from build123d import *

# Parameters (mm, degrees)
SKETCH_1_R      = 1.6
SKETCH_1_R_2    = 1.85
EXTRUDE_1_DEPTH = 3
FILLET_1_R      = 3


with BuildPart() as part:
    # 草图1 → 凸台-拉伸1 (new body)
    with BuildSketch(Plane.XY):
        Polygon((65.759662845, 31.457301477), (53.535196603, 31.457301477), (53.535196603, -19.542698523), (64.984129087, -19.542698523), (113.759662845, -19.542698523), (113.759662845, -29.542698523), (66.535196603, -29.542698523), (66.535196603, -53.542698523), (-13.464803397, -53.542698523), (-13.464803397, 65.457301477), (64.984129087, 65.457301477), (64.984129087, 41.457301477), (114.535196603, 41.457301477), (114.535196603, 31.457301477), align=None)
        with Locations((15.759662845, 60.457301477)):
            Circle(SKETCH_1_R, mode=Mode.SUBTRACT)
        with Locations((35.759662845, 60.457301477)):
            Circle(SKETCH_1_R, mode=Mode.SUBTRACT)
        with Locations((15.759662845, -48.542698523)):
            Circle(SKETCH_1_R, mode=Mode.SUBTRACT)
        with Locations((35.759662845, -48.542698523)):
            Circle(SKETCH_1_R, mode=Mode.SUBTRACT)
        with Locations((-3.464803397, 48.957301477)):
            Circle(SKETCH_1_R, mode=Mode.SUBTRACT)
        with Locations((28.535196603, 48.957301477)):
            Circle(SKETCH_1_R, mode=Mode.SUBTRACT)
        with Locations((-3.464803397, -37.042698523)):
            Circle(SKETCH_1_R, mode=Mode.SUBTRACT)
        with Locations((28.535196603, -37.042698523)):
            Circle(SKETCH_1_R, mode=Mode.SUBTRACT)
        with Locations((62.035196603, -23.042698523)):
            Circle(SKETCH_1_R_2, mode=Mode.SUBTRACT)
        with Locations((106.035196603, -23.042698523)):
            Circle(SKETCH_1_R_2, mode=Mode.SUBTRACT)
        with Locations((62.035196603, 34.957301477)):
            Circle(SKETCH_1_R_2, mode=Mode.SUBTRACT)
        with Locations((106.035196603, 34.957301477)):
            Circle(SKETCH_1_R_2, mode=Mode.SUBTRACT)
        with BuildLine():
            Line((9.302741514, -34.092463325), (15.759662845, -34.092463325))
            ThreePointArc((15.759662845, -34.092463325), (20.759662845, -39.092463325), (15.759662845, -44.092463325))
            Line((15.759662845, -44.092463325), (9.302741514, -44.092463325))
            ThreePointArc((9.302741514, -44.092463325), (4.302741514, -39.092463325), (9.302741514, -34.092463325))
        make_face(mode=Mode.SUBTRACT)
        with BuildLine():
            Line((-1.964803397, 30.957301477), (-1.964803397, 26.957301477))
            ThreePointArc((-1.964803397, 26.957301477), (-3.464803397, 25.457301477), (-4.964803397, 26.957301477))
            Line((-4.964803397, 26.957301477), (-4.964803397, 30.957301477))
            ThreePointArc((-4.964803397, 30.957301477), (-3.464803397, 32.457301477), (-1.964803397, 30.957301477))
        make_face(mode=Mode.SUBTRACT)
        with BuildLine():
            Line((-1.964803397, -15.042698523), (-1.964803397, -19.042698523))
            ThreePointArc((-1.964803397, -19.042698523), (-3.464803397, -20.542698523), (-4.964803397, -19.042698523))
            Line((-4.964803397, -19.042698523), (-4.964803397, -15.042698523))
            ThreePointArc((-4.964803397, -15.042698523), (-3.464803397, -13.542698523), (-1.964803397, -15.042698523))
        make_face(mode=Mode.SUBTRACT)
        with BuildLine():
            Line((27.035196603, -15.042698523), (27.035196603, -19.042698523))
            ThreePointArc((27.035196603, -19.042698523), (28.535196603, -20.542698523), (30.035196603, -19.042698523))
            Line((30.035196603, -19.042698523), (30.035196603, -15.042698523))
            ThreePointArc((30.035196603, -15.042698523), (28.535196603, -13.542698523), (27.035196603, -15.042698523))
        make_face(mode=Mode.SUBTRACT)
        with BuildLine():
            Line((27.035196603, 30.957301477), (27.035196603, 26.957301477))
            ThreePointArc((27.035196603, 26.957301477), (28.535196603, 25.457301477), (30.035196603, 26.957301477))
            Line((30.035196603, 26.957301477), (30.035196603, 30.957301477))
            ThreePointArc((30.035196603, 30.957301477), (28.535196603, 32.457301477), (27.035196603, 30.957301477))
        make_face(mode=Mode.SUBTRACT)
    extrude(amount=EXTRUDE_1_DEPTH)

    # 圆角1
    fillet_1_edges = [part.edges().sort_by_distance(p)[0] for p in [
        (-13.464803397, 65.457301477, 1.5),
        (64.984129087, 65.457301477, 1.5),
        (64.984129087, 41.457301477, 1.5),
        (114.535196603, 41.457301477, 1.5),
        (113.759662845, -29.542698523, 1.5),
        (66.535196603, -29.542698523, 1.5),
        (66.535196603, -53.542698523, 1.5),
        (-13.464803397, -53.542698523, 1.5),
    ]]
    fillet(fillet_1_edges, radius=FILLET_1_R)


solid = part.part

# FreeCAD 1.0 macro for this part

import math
import FreeCAD as App
import Part
import Sketcher

V = App.Vector


def edges_at(feature, points):
    """Names of the edges that pass closest to the given points."""
    edges = feature.Shape.Edges
    near = lambda p: min(range(len(edges)), key=lambda i: edges[i].distToShape(Part.Vertex(*p))[0])
    return sorted({f"Edge{near(p) + 1}" for p in points})

doc = App.newDocument("Part")
body = doc.addObject("PartDesign::Body", "Body")

sketch1 = body.newObject("Sketcher::SketchObject", "Sketch")
sketch1.AttachmentSupport = (doc.getObject("XY_Plane"), [""])
sketch1.MapMode = "FlatFace"
sketch1.addGeometry(Part.LineSegment(V(53.5, 31.5, 0), V(114.5, 31.5, 0)), False)
sketch1.addGeometry(Part.LineSegment(V(114.5, 31.5, 0), V(114.5, 41.5, 0)), False)
sketch1.addGeometry(Part.LineSegment(V(114.5, 41.5, 0), V(65, 41.5, 0)), False)
sketch1.addGeometry(Part.LineSegment(V(65, 41.5, 0), V(65, 65.5, 0)), False)
sketch1.addGeometry(Part.LineSegment(V(65, 65.5, 0), V(-13.5, 65.5, 0)), False)
sketch1.addGeometry(Part.LineSegment(V(-13.5, 65.5, 0), V(-13.5, -53.5, 0)), False)
sketch1.addGeometry(Part.LineSegment(V(-13.5, -53.5, 0), V(66.5, -53.5, 0)), False)
sketch1.addGeometry(Part.LineSegment(V(66.5, -53.5, 0), V(66.5, -29.5, 0)), False)
sketch1.addGeometry(Part.LineSegment(V(66.5, -29.5, 0), V(113.8, -29.5, 0)), False)
sketch1.addGeometry(Part.LineSegment(V(113.8, -29.5, 0), V(113.8, -19.5, 0)), False)
sketch1.addGeometry(Part.LineSegment(V(113.8, -19.5, 0), V(53.5, -19.5, 0)), False)
sketch1.addGeometry(Part.LineSegment(V(53.5, -19.5, 0), V(53.5, 31.5, 0)), False)
sketch1.addGeometry(Part.Circle(V(106, -23, 0), V(0, 0, 1), 1.9), False)
sketch1.addGeometry(Part.Circle(V(62, -23, 0), V(0, 0, 1), 1.9), False)
sketch1.addGeometry(Part.Circle(V(35.8, -48.5, 0), V(0, 0, 1), 1.6), False)
sketch1.addGeometry(Part.Circle(V(28.5, -37, 0), V(0, 0, 1), 1.6), False)
sketch1.addGeometry(Part.Circle(V(15.8, -48.5, 0), V(0, 0, 1), 1.6), False)
sketch1.addGeometry(Part.LineSegment(V(9.3, -34.1, 0), V(15.8, -34.1, 0)), False)
sketch1.addGeometry(Part.ArcOfCircle(Part.Circle(V(15.8, -39.1, 0), V(0, 0, 1), 5), math.radians(-90), math.radians(90)), False)
sketch1.addGeometry(Part.LineSegment(V(15.8, -44.1, 0), V(9.3, -44.1, 0)), False)
sketch1.addGeometry(Part.ArcOfCircle(Part.Circle(V(9.3, -39.1, 0), V(0, 0, 1), 5), math.radians(90), math.radians(270)), False)
sketch1.addGeometry(Part.Circle(V(-3.5, -37, 0), V(0, 0, 1), 1.6), False)
sketch1.addGeometry(Part.ArcOfCircle(Part.Circle(V(28.5, -15, 0), V(0, 0, 1), 1.5), math.radians(0), math.radians(180)), False)
sketch1.addGeometry(Part.LineSegment(V(30, -15, 0), V(30, -19, 0)), False)
sketch1.addGeometry(Part.ArcOfCircle(Part.Circle(V(28.5, -19, 0), V(0, 0, 1), 1.5), math.radians(180), math.radians(360)), False)
sketch1.addGeometry(Part.LineSegment(V(27, -19, 0), V(27, -15, 0)), False)
sketch1.addGeometry(Part.LineSegment(V(-2, -15, 0), V(-2, -19, 0)), False)
sketch1.addGeometry(Part.ArcOfCircle(Part.Circle(V(-3.5, -19, 0), V(0, 0, 1), 1.5), math.radians(180), math.radians(360)), False)
sketch1.addGeometry(Part.LineSegment(V(-5, -19, 0), V(-5, -15, 0)), False)
sketch1.addGeometry(Part.ArcOfCircle(Part.Circle(V(-3.5, -15, 0), V(0, 0, 1), 1.5), math.radians(0), math.radians(180)), False)
sketch1.addGeometry(Part.Circle(V(106, 35, 0), V(0, 0, 1), 1.9), False)
sketch1.addGeometry(Part.Circle(V(62, 35, 0), V(0, 0, 1), 1.9), False)
sketch1.addGeometry(Part.ArcOfCircle(Part.Circle(V(28.5, 31, 0), V(0, 0, 1), 1.5), math.radians(0), math.radians(180)), False)
sketch1.addGeometry(Part.LineSegment(V(30, 31, 0), V(30, 27, 0)), False)
sketch1.addGeometry(Part.ArcOfCircle(Part.Circle(V(28.5, 27, 0), V(0, 0, 1), 1.5), math.radians(180), math.radians(360)), False)
sketch1.addGeometry(Part.LineSegment(V(27, 27, 0), V(27, 31, 0)), False)
sketch1.addGeometry(Part.LineSegment(V(-2, 31, 0), V(-2, 27, 0)), False)
sketch1.addGeometry(Part.ArcOfCircle(Part.Circle(V(-3.5, 27, 0), V(0, 0, 1), 1.5), math.radians(180), math.radians(360)), False)
sketch1.addGeometry(Part.LineSegment(V(-5, 27, 0), V(-5, 31, 0)), False)
sketch1.addGeometry(Part.ArcOfCircle(Part.Circle(V(-3.5, 31, 0), V(0, 0, 1), 1.5), math.radians(0), math.radians(180)), False)
sketch1.addGeometry(Part.Circle(V(28.5, 49, 0), V(0, 0, 1), 1.6), False)
sketch1.addGeometry(Part.Circle(V(35.8, 60.5, 0), V(0, 0, 1), 1.6), False)
sketch1.addGeometry(Part.Circle(V(15.8, 60.5, 0), V(0, 0, 1), 1.6), False)
sketch1.addGeometry(Part.Circle(V(-3.5, 49, 0), V(0, 0, 1), 1.6), False)
sketch1.addConstraint(Sketcher.Constraint("Coincident", 0, 2, 1, 1))
sketch1.addConstraint(Sketcher.Constraint("Coincident", 1, 2, 2, 1))
sketch1.addConstraint(Sketcher.Constraint("Coincident", 2, 2, 3, 1))
sketch1.addConstraint(Sketcher.Constraint("Coincident", 3, 2, 4, 1))
sketch1.addConstraint(Sketcher.Constraint("Coincident", 4, 2, 5, 1))
sketch1.addConstraint(Sketcher.Constraint("Coincident", 5, 2, 6, 1))
sketch1.addConstraint(Sketcher.Constraint("Coincident", 6, 2, 7, 1))
sketch1.addConstraint(Sketcher.Constraint("Coincident", 7, 2, 8, 1))
sketch1.addConstraint(Sketcher.Constraint("Coincident", 8, 2, 9, 1))
sketch1.addConstraint(Sketcher.Constraint("Coincident", 9, 2, 10, 1))
sketch1.addConstraint(Sketcher.Constraint("Coincident", 10, 2, 11, 1))
sketch1.addConstraint(Sketcher.Constraint("Coincident", 11, 2, 0, 1))
sketch1.addConstraint(Sketcher.Constraint("Tangent", 17, 2, 18, 2))
sketch1.addConstraint(Sketcher.Constraint("Tangent", 18, 1, 19, 1))
sketch1.addConstraint(Sketcher.Constraint("Tangent", 19, 2, 20, 2))
sketch1.addConstraint(Sketcher.Constraint("Tangent", 20, 1, 17, 1))
sketch1.addConstraint(Sketcher.Constraint("Tangent", 22, 1, 23, 1))
sketch1.addConstraint(Sketcher.Constraint("Tangent", 23, 2, 24, 2))
sketch1.addConstraint(Sketcher.Constraint("Tangent", 24, 1, 25, 1))
sketch1.addConstraint(Sketcher.Constraint("Tangent", 25, 2, 22, 2))
sketch1.addConstraint(Sketcher.Constraint("Tangent", 26, 2, 27, 2))
sketch1.addConstraint(Sketcher.Constraint("Tangent", 27, 1, 28, 1))
sketch1.addConstraint(Sketcher.Constraint("Tangent", 28, 2, 29, 2))
sketch1.addConstraint(Sketcher.Constraint("Tangent", 29, 1, 26, 1))
sketch1.addConstraint(Sketcher.Constraint("Tangent", 32, 1, 33, 1))
sketch1.addConstraint(Sketcher.Constraint("Tangent", 33, 2, 34, 2))
sketch1.addConstraint(Sketcher.Constraint("Tangent", 34, 1, 35, 1))
sketch1.addConstraint(Sketcher.Constraint("Tangent", 35, 2, 32, 2))
sketch1.addConstraint(Sketcher.Constraint("Tangent", 36, 2, 37, 2))
sketch1.addConstraint(Sketcher.Constraint("Tangent", 37, 1, 38, 1))
sketch1.addConstraint(Sketcher.Constraint("Tangent", 38, 2, 39, 2))
sketch1.addConstraint(Sketcher.Constraint("Tangent", 39, 1, 36, 1))
sketch1.addConstraint(Sketcher.Constraint("Horizontal", 0))
sketch1.addConstraint(Sketcher.Constraint("Vertical", 1))
sketch1.addConstraint(Sketcher.Constraint("Horizontal", 2))
sketch1.addConstraint(Sketcher.Constraint("Vertical", 3))
sketch1.addConstraint(Sketcher.Constraint("Horizontal", 4))
sketch1.addConstraint(Sketcher.Constraint("Vertical", 5))
sketch1.addConstraint(Sketcher.Constraint("Horizontal", 6))
sketch1.addConstraint(Sketcher.Constraint("Vertical", 7))
sketch1.addConstraint(Sketcher.Constraint("Horizontal", 8))
sketch1.addConstraint(Sketcher.Constraint("Vertical", 9))
sketch1.addConstraint(Sketcher.Constraint("Horizontal", 10))
sketch1.addConstraint(Sketcher.Constraint("Vertical", 11))
sketch1.addConstraint(Sketcher.Constraint("Horizontal", 17))
sketch1.addConstraint(Sketcher.Constraint("Horizontal", 19))
sketch1.addConstraint(Sketcher.Constraint("Vertical", 23))
sketch1.addConstraint(Sketcher.Constraint("Vertical", 25))
sketch1.addConstraint(Sketcher.Constraint("Vertical", 26))
sketch1.addConstraint(Sketcher.Constraint("Vertical", 28))
sketch1.addConstraint(Sketcher.Constraint("Vertical", 33))
sketch1.addConstraint(Sketcher.Constraint("Vertical", 35))
sketch1.addConstraint(Sketcher.Constraint("Vertical", 36))
sketch1.addConstraint(Sketcher.Constraint("Vertical", 38))
sketch1.addConstraint(Sketcher.Constraint("Equal", 12, 13))
sketch1.addConstraint(Sketcher.Constraint("Equal", 14, 15))
sketch1.addConstraint(Sketcher.Constraint("Equal", 15, 16))
sketch1.addConstraint(Sketcher.Constraint("Equal", 16, 21))
sketch1.addConstraint(Sketcher.Constraint("Equal", 24, 27))
sketch1.addConstraint(Sketcher.Constraint("Equal", 13, 30))
sketch1.addConstraint(Sketcher.Constraint("Equal", 30, 31))
sketch1.addConstraint(Sketcher.Constraint("Equal", 29, 32))
sketch1.addConstraint(Sketcher.Constraint("Equal", 34, 37))
sketch1.addConstraint(Sketcher.Constraint("Equal", 21, 40))
sketch1.addConstraint(Sketcher.Constraint("Equal", 40, 41))
sketch1.addConstraint(Sketcher.Constraint("Equal", 41, 42))
sketch1.addConstraint(Sketcher.Constraint("Equal", 42, 43))
sketch1.addConstraint(Sketcher.Constraint("Horizontal", 12, 3, 13, 3))
sketch1.addConstraint(Sketcher.Constraint("Horizontal", 14, 3, 16, 3))
sketch1.addConstraint(Sketcher.Constraint("Horizontal", 15, 3, 21, 3))
sketch1.addConstraint(Sketcher.Constraint("Horizontal", 24, 3, 27, 3))
sketch1.addConstraint(Sketcher.Constraint("Horizontal", 22, 3, 29, 3))
sketch1.addConstraint(Sketcher.Constraint("Horizontal", 30, 3, 31, 3))
sketch1.addConstraint(Sketcher.Constraint("Horizontal", 34, 3, 37, 3))
sketch1.addConstraint(Sketcher.Constraint("Horizontal", 32, 3, 39, 3))
sketch1.addConstraint(Sketcher.Constraint("Horizontal", 41, 3, 42, 3))
sketch1.addConstraint(Sketcher.Constraint("Horizontal", 40, 3, 43, 3))
sketch1.addConstraint(Sketcher.Constraint("Vertical", 16, 3, 18, 3))
sketch1.addConstraint(Sketcher.Constraint("Vertical", 15, 3, 22, 3))
sketch1.addConstraint(Sketcher.Constraint("Vertical", 21, 3, 27, 3))
sketch1.addConstraint(Sketcher.Constraint("Vertical", 12, 3, 30, 3))
sketch1.addConstraint(Sketcher.Constraint("Vertical", 13, 3, 31, 3))
sketch1.addConstraint(Sketcher.Constraint("Vertical", 24, 3, 32, 3))
sketch1.addConstraint(Sketcher.Constraint("Vertical", 29, 3, 37, 3))
sketch1.addConstraint(Sketcher.Constraint("Vertical", 34, 3, 40, 3))
sketch1.addConstraint(Sketcher.Constraint("Vertical", 14, 3, 41, 3))
sketch1.addConstraint(Sketcher.Constraint("Vertical", 18, 3, 42, 3))
sketch1.addConstraint(Sketcher.Constraint("Vertical", 39, 3, 43, 3))
sketch1.addConstraint(Sketcher.Constraint("Equal", 3, 7))
sketch1.addConstraint(Sketcher.Constraint("Equal", 1, 9))
sketch1.addConstraint(Sketcher.Constraint("Equal", 28, 33))
sketch1.addConstraint(Sketcher.Constraint("Radius", 18, 5.0))
sketch1.addConstraint(Sketcher.Constraint("Diameter", 12, 3.7))
sketch1.addConstraint(Sketcher.Constraint("Diameter", 14, 3.2))
sketch1.addConstraint(Sketcher.Constraint("Radius", 22, 1.5))
sketch1.addConstraint(Sketcher.Constraint("DistanceX", 0, 1, 0, 2, 61.0))
sketch1.addConstraint(Sketcher.Constraint("DistanceX", 6, 1, 6, 2, 80.0))
sketch1.addConstraint(Sketcher.Constraint("DistanceY", 1, 1, 1, 2, 10.0))
sketch1.addConstraint(Sketcher.Constraint("DistanceY", 3, 1, 3, 2, 24.0))
sketch1.addConstraint(Sketcher.Constraint("DistanceY", 5, 2, 5, 1, 119.0))
sketch1.addConstraint(Sketcher.Constraint("DistanceY", 23, 2, 23, 1, 4.0))
sketch1.addConstraint(Sketcher.Constraint("DistanceX", 13, 3, 12, 3, 44.0))
sketch1.addConstraint(Sketcher.Constraint("DistanceY", 15, 3, 13, 3, 14.0))
sketch1.addConstraint(Sketcher.Constraint("DistanceX", 16, 3, 14, 3, 20.0))
sketch1.addConstraint(Sketcher.Constraint("DistanceX", 21, 3, 15, 3, 32.0))
sketch1.addConstraint(Sketcher.Constraint("DistanceY", 15, 3, 22, 3, 22.0))
sketch1.addConstraint(Sketcher.Constraint("DistanceY", 12, 3, 30, 3, 58.0))
sketch1.addConstraint(Sketcher.Constraint("DistanceY", 32, 3, 31, 3, 4.0))
sketch1.addConstraint(Sketcher.Constraint("DistanceY", 32, 3, 40, 3, 18.0))
sketch1.addConstraint(Sketcher.Constraint("DistanceY", 0, 2, 41, 3, 29.0))
sketch1.addConstraint(Sketcher.Constraint("DistanceX", 4, 2, 43, 3, 10.0))
sketch1.addConstraint(Sketcher.Constraint("DistanceY", 5, 2, 16, 3, 5.0))
sketch1.addConstraint(Sketcher.Constraint("DistanceX", 10, 2, 7, 2, 13.0))
sketch1.addConstraint(Sketcher.Constraint("DistanceY", 14, 3, 13, 3, 25.5))
sketch1.addConstraint(Sketcher.Constraint("DistanceX", 15, 3, 13, 3, 33.5))
sketch1.addConstraint(Sketcher.Constraint("DistanceX", 17, 1, 17, 2, 6.456921))
sketch1.addConstraint(Sketcher.Constraint("DistanceY", 12, 3, -1, 1, 23.042699))
sketch1.addConstraint(Sketcher.Constraint("DistanceX", 2, 2, 2, 1, 49.551068))
sketch1.addConstraint(Sketcher.Constraint("DistanceX", 8, 1, 8, 2, 47.224466))
sketch1.addConstraint(Sketcher.Constraint("DistanceX", -1, 1, 20, 3, 9.302742))
sketch1.addConstraint(Sketcher.Constraint("DistanceX", -1, 1, 2, 2, 64.984129))
sketch1.addConstraint(Sketcher.Constraint("DistanceY", 18, 3, -1, 1, 39.092463))
pad1 = body.newObject("PartDesign::Pad", "Pad")
pad1.Profile = sketch1
pad1.Length = 3
doc.recompute()

fillet = body.newObject("PartDesign::Fillet", "Fillet")
fillet.Base = (pad1, edges_at(pad1, [
    (-13.465, 65.457, 1.5),
    (64.984, 65.457, 1.5),
    (64.984, 41.457, 1.5),
    (114.535, 41.457, 1.5),
    (113.76, -29.543, 1.5),
    (66.535, -29.543, 1.5),
    (66.535, -53.543, 1.5),
    (-13.465, -53.543, 1.5),
]))
fillet.Radius = 3

doc.recompute()
